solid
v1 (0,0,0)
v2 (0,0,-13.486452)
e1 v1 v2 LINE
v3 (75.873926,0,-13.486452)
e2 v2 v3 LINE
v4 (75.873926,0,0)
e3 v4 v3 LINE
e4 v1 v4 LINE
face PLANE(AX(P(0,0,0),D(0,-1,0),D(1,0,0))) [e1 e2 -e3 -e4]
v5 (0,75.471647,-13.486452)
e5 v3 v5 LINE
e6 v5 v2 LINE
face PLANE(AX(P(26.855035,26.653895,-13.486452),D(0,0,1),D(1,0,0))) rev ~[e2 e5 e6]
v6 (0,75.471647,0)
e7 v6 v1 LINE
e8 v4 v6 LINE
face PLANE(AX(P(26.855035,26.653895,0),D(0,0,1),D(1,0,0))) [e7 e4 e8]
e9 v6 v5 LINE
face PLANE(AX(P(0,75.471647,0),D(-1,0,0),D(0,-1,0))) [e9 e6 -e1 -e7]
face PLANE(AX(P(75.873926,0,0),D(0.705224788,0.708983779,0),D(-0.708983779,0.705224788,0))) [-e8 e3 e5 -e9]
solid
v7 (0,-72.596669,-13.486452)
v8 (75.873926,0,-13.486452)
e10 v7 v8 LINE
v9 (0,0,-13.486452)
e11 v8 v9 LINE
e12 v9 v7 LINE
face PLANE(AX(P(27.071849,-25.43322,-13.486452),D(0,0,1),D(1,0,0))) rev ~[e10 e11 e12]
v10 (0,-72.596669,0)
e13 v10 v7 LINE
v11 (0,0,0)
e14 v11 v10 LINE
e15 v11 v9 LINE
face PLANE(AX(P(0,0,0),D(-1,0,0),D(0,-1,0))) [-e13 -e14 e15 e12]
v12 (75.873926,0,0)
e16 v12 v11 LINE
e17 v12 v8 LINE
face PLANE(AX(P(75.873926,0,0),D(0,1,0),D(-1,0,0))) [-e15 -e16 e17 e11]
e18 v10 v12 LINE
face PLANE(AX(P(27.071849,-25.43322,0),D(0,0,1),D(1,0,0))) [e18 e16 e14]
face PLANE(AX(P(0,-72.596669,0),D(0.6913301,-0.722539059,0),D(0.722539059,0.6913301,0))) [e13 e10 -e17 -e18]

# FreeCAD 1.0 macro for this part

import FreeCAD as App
import Part
import Sketcher

V = App.Vector
Q = App.Units.Quantity


def add_polygon(sketch, points):
    """Adds a closed chain of lines whose ends are joined by coincident constraints."""
    first, n = sketch.GeometryCount, len(points)
    for a, b in zip(points, points[1:] + points[:1]):
        sketch.addGeometry(Part.LineSegment(App.Vector(*a, 0), App.Vector(*b, 0)), False)
    for i in range(n):
        sketch.addConstraint(Sketcher.Constraint("Coincident", first + i, 2, first + (i + 1) % n, 1))

doc = App.newDocument("Part")
body = doc.addObject("PartDesign::Body", "Body")

# Sketch on XY plane
sketch1 = body.newObject("Sketcher::SketchObject", "Sketch")
sketch1.AttachmentSupport = (doc.getObject("XY_Plane"), [""])
sketch1.MapMode = "FlatFace"
add_polygon(sketch1, [(0, 0), (75.873926, 0), (0, 75.471647)])  # lines 0-2
sketch1.addConstraint([
    Sketcher.Constraint("Horizontal", 0),
    Sketcher.Constraint("Vertical", 2),
    Sketcher.Constraint("Coincident", 2, 2, -1, 1),
    Sketcher.Constraint("Distance", 1, Q("107.017859 mm")),
    Sketcher.Constraint("DistanceX", 0, 1, 0, 2, Q("75.873926 mm")),
])
pad1 = body.newObject("PartDesign::Pad", "Pad")
pad1.Profile = sketch1
pad1.Length = 13.486452
pad1.Reversed = True
body2 = doc.addObject("PartDesign::Body", "Body001")

# Sketch on XY plane
sketch2 = body2.newObject("Sketcher::SketchObject", "Sketch001")
sketch2.AttachmentSupport = (doc.getObject("XY_Plane001"), [""])
sketch2.MapMode = "FlatFace"
add_polygon(sketch2, [(0, 0), (0, -72.596669), (75.873926, 0)])  # lines 0-2
sketch2.addConstraint([
    Sketcher.Constraint("Vertical", 0),
    Sketcher.Constraint("Horizontal", 2),
    Sketcher.Constraint("Coincident", 2, 2, -1, 1),
    Sketcher.Constraint("DistanceY", 0, 2, 0, 1, Q("72.596669 mm")),
    Sketcher.Constraint("DistanceX", 2, 2, 2, 1, Q("75.873926 mm")),
])
pad2 = body2.newObject("PartDesign::Pad", "Pad001")
pad2.Profile = sketch2
pad2.Length = 13.486452
pad2.Reversed = True

doc.recompute()
